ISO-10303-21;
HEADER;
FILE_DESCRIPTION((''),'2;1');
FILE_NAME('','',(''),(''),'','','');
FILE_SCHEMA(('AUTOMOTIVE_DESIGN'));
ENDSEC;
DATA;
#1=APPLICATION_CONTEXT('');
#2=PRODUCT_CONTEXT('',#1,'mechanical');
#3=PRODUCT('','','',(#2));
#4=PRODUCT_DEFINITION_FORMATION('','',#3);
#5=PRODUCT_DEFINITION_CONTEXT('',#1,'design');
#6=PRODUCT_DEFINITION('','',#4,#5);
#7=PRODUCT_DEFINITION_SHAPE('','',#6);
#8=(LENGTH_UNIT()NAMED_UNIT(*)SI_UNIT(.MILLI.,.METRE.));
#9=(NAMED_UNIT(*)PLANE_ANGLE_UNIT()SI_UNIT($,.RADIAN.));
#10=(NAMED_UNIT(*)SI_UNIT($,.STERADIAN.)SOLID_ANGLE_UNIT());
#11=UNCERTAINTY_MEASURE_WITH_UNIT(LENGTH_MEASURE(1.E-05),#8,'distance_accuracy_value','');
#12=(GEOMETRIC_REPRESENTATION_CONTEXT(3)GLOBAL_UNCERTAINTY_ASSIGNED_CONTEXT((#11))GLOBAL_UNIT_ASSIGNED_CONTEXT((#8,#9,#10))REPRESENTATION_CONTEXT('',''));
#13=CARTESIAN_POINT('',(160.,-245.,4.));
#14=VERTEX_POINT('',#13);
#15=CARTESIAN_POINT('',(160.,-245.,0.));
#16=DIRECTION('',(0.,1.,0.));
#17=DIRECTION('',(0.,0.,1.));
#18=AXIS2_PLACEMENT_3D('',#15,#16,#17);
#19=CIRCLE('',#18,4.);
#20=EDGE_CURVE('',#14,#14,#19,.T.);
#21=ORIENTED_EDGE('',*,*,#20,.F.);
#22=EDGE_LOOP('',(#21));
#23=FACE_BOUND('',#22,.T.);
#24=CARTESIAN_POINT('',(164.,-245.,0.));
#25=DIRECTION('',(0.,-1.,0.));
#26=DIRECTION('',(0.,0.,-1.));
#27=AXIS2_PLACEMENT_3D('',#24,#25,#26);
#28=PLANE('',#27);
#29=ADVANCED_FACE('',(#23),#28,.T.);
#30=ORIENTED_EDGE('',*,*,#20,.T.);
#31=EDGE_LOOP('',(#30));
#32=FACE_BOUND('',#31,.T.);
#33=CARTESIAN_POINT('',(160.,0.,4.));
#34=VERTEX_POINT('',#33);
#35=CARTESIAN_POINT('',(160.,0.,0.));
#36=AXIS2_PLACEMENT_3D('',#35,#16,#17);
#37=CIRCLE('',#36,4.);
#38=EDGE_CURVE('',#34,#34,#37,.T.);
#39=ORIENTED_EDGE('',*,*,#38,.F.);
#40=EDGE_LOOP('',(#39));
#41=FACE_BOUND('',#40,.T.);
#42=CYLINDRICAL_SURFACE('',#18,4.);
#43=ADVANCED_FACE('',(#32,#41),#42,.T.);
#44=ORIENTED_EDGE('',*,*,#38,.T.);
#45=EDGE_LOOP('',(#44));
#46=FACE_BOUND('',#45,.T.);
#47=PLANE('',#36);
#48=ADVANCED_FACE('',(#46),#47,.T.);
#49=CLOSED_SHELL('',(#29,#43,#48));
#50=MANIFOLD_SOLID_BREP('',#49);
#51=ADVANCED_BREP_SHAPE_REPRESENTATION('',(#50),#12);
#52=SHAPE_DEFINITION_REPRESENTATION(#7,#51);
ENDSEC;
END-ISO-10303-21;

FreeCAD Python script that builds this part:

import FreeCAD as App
import Part
import Sketcher


def add_polygon(sketch, points):
    """Adds a closed chain of lines whose ends are joined by coincident constraints."""
    first, n = sketch.GeometryCount, len(points)
    for a, b in zip(points, points[1:] + points[:1]):
        sketch.addGeometry(Part.LineSegment(App.Vector(*a, 0), App.Vector(*b, 0)), False)
    for i in range(n):
        sketch.addConstraint(Sketcher.Constraint("Coincident", first + i, 2, first + (i + 1) % n, 1))

doc = App.newDocument("Part")
body = doc.addObject("PartDesign::Body", "Body")

sketch1 = body.newObject("Sketcher::SketchObject", "Sketch")
sketch1.AttachmentSupport = (doc.getObject("XY_Plane"), [""])
sketch1.MapMode = "FlatFace"
add_polygon(sketch1, [(164, 0), (164, -245), (160, -245), (160, 0)])
sketch1.addGeometry(Part.LineSegment(App.Vector(160, -245, 0), App.Vector(160, 0, 0)), True)
sketch1.addConstraint(Sketcher.Constraint("Vertical", 0))
sketch1.addConstraint(Sketcher.Constraint("Horizontal", 1))
sketch1.addConstraint(Sketcher.Constraint("Vertical", 2))
sketch1.addConstraint(Sketcher.Constraint("Horizontal", 3))
sketch1.addConstraint(Sketcher.Constraint("Vertical", 4))
sketch1.addConstraint(Sketcher.Constraint("Coincident", 4, 1, 1, 2))
sketch1.addConstraint(Sketcher.Constraint("PointOnObject", 2, 2, -1))
sketch1.addConstraint(Sketcher.Constraint("PointOnObject", 4, 2, -1))
sketch1.addConstraint(Sketcher.Constraint("DistanceX", 1, 2, 1, 1, 4.0))
sketch1.addConstraint(Sketcher.Constraint("DistanceY", 0, 2, 0, 1, 245.0))
sketch1.addConstraint(Sketcher.Constraint("DistanceX", -1, 1, 0, 2, 164.0))
revolution = body.newObject("PartDesign::Revolution", "Revolution")
revolution.Profile = sketch1
revolution.ReferenceAxis = (sketch1, ["Axis0"])
revolution.Angle = 360

doc.recompute()
